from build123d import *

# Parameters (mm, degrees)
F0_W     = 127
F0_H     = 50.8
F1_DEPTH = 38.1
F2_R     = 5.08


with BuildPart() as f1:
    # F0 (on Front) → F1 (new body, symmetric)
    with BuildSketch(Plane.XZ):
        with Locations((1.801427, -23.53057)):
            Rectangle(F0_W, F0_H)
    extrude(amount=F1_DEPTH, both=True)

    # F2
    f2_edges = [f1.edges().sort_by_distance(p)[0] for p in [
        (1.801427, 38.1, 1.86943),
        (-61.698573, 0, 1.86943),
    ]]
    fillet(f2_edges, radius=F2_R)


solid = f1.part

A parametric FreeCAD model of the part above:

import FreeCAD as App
import Part
import Sketcher
Q = App.Units.Quantity


def edges_at(feature, points):
    """Names of the edges that pass closest to the given points."""
    edges = feature.Shape.Edges
    near = lambda p: min(range(len(edges)), key=lambda i: edges[i].distToShape(Part.Vertex(*p))[0])
    return sorted({f"Edge{near(p) + 1}" for p in points})

doc = App.newDocument("Part")
body = doc.addObject("PartDesign::Body", "Body")

# Sketch on XZ plane
sketch1 = doc.addObject("Sketcher::SketchObject", "Sketch")
body.addObject(sketch1)
sketch1.AttachmentSupport = (doc.XZ_Plane, [""])
sketch1.MapMode = "FlatFace"
sketch1.addGeometry(Part.LineSegment(App.Vector(-61.698573, 1.86943, 0), App.Vector(-61.698573, -48.93057, 0)), False)
sketch1.addGeometry(Part.LineSegment(App.Vector(-61.698573, -48.93057, 0), App.Vector(65.301427, -48.93057, 0)), False)
sketch1.addGeometry(Part.LineSegment(App.Vector(65.301427, -48.93057, 0), App.Vector(65.301427, 1.86943, 0)), False)
sketch1.addGeometry(Part.LineSegment(App.Vector(65.301427, 1.86943, 0), App.Vector(-61.698573, 1.86943, 0)), False)
sketch1.addConstraint(Sketcher.Constraint("Coincident", 0, 2, 1, 1))
sketch1.addConstraint(Sketcher.Constraint("Coincident", 1, 2, 2, 1))
sketch1.addConstraint(Sketcher.Constraint("Coincident", 2, 2, 3, 1))
sketch1.addConstraint(Sketcher.Constraint("Coincident", 3, 2, 0, 1))
sketch1.addConstraint(Sketcher.Constraint("Vertical", 0))
sketch1.addConstraint(Sketcher.Constraint("Horizontal", 1))
sketch1.addConstraint(Sketcher.Constraint("Vertical", 2))
sketch1.addConstraint(Sketcher.Constraint("Horizontal", 3))
sketch1.addConstraint(Sketcher.Constraint("DistanceX", 1, 1, 1, 2, Q("5 in")))
sketch1.addConstraint(Sketcher.Constraint("DistanceY", 0, 2, 0, 1, Q("2 in")))
sketch1.addConstraint(Sketcher.Constraint("DistanceY", 0, 2, -1, 1, 48.93057))
sketch1.addConstraint(Sketcher.Constraint("DistanceX", 0, 2, -1, 1, 61.698573))
pad1 = doc.addObject("PartDesign::Pad", "Pad")
body.addObject(pad1)
pad1.Profile = sketch1
pad1.Length = Q("3 in")
pad1.Midplane = True
doc.recompute()

fillet = doc.addObject("PartDesign::Fillet", "Fillet")
body.addObject(fillet)
fillet.Base = (pad1, edges_at(pad1, [(1.801, 38.1, 1.869), (-61.699, 0, 1.869)]))
fillet.Radius = Q("0.2 in")

doc.recompute()
